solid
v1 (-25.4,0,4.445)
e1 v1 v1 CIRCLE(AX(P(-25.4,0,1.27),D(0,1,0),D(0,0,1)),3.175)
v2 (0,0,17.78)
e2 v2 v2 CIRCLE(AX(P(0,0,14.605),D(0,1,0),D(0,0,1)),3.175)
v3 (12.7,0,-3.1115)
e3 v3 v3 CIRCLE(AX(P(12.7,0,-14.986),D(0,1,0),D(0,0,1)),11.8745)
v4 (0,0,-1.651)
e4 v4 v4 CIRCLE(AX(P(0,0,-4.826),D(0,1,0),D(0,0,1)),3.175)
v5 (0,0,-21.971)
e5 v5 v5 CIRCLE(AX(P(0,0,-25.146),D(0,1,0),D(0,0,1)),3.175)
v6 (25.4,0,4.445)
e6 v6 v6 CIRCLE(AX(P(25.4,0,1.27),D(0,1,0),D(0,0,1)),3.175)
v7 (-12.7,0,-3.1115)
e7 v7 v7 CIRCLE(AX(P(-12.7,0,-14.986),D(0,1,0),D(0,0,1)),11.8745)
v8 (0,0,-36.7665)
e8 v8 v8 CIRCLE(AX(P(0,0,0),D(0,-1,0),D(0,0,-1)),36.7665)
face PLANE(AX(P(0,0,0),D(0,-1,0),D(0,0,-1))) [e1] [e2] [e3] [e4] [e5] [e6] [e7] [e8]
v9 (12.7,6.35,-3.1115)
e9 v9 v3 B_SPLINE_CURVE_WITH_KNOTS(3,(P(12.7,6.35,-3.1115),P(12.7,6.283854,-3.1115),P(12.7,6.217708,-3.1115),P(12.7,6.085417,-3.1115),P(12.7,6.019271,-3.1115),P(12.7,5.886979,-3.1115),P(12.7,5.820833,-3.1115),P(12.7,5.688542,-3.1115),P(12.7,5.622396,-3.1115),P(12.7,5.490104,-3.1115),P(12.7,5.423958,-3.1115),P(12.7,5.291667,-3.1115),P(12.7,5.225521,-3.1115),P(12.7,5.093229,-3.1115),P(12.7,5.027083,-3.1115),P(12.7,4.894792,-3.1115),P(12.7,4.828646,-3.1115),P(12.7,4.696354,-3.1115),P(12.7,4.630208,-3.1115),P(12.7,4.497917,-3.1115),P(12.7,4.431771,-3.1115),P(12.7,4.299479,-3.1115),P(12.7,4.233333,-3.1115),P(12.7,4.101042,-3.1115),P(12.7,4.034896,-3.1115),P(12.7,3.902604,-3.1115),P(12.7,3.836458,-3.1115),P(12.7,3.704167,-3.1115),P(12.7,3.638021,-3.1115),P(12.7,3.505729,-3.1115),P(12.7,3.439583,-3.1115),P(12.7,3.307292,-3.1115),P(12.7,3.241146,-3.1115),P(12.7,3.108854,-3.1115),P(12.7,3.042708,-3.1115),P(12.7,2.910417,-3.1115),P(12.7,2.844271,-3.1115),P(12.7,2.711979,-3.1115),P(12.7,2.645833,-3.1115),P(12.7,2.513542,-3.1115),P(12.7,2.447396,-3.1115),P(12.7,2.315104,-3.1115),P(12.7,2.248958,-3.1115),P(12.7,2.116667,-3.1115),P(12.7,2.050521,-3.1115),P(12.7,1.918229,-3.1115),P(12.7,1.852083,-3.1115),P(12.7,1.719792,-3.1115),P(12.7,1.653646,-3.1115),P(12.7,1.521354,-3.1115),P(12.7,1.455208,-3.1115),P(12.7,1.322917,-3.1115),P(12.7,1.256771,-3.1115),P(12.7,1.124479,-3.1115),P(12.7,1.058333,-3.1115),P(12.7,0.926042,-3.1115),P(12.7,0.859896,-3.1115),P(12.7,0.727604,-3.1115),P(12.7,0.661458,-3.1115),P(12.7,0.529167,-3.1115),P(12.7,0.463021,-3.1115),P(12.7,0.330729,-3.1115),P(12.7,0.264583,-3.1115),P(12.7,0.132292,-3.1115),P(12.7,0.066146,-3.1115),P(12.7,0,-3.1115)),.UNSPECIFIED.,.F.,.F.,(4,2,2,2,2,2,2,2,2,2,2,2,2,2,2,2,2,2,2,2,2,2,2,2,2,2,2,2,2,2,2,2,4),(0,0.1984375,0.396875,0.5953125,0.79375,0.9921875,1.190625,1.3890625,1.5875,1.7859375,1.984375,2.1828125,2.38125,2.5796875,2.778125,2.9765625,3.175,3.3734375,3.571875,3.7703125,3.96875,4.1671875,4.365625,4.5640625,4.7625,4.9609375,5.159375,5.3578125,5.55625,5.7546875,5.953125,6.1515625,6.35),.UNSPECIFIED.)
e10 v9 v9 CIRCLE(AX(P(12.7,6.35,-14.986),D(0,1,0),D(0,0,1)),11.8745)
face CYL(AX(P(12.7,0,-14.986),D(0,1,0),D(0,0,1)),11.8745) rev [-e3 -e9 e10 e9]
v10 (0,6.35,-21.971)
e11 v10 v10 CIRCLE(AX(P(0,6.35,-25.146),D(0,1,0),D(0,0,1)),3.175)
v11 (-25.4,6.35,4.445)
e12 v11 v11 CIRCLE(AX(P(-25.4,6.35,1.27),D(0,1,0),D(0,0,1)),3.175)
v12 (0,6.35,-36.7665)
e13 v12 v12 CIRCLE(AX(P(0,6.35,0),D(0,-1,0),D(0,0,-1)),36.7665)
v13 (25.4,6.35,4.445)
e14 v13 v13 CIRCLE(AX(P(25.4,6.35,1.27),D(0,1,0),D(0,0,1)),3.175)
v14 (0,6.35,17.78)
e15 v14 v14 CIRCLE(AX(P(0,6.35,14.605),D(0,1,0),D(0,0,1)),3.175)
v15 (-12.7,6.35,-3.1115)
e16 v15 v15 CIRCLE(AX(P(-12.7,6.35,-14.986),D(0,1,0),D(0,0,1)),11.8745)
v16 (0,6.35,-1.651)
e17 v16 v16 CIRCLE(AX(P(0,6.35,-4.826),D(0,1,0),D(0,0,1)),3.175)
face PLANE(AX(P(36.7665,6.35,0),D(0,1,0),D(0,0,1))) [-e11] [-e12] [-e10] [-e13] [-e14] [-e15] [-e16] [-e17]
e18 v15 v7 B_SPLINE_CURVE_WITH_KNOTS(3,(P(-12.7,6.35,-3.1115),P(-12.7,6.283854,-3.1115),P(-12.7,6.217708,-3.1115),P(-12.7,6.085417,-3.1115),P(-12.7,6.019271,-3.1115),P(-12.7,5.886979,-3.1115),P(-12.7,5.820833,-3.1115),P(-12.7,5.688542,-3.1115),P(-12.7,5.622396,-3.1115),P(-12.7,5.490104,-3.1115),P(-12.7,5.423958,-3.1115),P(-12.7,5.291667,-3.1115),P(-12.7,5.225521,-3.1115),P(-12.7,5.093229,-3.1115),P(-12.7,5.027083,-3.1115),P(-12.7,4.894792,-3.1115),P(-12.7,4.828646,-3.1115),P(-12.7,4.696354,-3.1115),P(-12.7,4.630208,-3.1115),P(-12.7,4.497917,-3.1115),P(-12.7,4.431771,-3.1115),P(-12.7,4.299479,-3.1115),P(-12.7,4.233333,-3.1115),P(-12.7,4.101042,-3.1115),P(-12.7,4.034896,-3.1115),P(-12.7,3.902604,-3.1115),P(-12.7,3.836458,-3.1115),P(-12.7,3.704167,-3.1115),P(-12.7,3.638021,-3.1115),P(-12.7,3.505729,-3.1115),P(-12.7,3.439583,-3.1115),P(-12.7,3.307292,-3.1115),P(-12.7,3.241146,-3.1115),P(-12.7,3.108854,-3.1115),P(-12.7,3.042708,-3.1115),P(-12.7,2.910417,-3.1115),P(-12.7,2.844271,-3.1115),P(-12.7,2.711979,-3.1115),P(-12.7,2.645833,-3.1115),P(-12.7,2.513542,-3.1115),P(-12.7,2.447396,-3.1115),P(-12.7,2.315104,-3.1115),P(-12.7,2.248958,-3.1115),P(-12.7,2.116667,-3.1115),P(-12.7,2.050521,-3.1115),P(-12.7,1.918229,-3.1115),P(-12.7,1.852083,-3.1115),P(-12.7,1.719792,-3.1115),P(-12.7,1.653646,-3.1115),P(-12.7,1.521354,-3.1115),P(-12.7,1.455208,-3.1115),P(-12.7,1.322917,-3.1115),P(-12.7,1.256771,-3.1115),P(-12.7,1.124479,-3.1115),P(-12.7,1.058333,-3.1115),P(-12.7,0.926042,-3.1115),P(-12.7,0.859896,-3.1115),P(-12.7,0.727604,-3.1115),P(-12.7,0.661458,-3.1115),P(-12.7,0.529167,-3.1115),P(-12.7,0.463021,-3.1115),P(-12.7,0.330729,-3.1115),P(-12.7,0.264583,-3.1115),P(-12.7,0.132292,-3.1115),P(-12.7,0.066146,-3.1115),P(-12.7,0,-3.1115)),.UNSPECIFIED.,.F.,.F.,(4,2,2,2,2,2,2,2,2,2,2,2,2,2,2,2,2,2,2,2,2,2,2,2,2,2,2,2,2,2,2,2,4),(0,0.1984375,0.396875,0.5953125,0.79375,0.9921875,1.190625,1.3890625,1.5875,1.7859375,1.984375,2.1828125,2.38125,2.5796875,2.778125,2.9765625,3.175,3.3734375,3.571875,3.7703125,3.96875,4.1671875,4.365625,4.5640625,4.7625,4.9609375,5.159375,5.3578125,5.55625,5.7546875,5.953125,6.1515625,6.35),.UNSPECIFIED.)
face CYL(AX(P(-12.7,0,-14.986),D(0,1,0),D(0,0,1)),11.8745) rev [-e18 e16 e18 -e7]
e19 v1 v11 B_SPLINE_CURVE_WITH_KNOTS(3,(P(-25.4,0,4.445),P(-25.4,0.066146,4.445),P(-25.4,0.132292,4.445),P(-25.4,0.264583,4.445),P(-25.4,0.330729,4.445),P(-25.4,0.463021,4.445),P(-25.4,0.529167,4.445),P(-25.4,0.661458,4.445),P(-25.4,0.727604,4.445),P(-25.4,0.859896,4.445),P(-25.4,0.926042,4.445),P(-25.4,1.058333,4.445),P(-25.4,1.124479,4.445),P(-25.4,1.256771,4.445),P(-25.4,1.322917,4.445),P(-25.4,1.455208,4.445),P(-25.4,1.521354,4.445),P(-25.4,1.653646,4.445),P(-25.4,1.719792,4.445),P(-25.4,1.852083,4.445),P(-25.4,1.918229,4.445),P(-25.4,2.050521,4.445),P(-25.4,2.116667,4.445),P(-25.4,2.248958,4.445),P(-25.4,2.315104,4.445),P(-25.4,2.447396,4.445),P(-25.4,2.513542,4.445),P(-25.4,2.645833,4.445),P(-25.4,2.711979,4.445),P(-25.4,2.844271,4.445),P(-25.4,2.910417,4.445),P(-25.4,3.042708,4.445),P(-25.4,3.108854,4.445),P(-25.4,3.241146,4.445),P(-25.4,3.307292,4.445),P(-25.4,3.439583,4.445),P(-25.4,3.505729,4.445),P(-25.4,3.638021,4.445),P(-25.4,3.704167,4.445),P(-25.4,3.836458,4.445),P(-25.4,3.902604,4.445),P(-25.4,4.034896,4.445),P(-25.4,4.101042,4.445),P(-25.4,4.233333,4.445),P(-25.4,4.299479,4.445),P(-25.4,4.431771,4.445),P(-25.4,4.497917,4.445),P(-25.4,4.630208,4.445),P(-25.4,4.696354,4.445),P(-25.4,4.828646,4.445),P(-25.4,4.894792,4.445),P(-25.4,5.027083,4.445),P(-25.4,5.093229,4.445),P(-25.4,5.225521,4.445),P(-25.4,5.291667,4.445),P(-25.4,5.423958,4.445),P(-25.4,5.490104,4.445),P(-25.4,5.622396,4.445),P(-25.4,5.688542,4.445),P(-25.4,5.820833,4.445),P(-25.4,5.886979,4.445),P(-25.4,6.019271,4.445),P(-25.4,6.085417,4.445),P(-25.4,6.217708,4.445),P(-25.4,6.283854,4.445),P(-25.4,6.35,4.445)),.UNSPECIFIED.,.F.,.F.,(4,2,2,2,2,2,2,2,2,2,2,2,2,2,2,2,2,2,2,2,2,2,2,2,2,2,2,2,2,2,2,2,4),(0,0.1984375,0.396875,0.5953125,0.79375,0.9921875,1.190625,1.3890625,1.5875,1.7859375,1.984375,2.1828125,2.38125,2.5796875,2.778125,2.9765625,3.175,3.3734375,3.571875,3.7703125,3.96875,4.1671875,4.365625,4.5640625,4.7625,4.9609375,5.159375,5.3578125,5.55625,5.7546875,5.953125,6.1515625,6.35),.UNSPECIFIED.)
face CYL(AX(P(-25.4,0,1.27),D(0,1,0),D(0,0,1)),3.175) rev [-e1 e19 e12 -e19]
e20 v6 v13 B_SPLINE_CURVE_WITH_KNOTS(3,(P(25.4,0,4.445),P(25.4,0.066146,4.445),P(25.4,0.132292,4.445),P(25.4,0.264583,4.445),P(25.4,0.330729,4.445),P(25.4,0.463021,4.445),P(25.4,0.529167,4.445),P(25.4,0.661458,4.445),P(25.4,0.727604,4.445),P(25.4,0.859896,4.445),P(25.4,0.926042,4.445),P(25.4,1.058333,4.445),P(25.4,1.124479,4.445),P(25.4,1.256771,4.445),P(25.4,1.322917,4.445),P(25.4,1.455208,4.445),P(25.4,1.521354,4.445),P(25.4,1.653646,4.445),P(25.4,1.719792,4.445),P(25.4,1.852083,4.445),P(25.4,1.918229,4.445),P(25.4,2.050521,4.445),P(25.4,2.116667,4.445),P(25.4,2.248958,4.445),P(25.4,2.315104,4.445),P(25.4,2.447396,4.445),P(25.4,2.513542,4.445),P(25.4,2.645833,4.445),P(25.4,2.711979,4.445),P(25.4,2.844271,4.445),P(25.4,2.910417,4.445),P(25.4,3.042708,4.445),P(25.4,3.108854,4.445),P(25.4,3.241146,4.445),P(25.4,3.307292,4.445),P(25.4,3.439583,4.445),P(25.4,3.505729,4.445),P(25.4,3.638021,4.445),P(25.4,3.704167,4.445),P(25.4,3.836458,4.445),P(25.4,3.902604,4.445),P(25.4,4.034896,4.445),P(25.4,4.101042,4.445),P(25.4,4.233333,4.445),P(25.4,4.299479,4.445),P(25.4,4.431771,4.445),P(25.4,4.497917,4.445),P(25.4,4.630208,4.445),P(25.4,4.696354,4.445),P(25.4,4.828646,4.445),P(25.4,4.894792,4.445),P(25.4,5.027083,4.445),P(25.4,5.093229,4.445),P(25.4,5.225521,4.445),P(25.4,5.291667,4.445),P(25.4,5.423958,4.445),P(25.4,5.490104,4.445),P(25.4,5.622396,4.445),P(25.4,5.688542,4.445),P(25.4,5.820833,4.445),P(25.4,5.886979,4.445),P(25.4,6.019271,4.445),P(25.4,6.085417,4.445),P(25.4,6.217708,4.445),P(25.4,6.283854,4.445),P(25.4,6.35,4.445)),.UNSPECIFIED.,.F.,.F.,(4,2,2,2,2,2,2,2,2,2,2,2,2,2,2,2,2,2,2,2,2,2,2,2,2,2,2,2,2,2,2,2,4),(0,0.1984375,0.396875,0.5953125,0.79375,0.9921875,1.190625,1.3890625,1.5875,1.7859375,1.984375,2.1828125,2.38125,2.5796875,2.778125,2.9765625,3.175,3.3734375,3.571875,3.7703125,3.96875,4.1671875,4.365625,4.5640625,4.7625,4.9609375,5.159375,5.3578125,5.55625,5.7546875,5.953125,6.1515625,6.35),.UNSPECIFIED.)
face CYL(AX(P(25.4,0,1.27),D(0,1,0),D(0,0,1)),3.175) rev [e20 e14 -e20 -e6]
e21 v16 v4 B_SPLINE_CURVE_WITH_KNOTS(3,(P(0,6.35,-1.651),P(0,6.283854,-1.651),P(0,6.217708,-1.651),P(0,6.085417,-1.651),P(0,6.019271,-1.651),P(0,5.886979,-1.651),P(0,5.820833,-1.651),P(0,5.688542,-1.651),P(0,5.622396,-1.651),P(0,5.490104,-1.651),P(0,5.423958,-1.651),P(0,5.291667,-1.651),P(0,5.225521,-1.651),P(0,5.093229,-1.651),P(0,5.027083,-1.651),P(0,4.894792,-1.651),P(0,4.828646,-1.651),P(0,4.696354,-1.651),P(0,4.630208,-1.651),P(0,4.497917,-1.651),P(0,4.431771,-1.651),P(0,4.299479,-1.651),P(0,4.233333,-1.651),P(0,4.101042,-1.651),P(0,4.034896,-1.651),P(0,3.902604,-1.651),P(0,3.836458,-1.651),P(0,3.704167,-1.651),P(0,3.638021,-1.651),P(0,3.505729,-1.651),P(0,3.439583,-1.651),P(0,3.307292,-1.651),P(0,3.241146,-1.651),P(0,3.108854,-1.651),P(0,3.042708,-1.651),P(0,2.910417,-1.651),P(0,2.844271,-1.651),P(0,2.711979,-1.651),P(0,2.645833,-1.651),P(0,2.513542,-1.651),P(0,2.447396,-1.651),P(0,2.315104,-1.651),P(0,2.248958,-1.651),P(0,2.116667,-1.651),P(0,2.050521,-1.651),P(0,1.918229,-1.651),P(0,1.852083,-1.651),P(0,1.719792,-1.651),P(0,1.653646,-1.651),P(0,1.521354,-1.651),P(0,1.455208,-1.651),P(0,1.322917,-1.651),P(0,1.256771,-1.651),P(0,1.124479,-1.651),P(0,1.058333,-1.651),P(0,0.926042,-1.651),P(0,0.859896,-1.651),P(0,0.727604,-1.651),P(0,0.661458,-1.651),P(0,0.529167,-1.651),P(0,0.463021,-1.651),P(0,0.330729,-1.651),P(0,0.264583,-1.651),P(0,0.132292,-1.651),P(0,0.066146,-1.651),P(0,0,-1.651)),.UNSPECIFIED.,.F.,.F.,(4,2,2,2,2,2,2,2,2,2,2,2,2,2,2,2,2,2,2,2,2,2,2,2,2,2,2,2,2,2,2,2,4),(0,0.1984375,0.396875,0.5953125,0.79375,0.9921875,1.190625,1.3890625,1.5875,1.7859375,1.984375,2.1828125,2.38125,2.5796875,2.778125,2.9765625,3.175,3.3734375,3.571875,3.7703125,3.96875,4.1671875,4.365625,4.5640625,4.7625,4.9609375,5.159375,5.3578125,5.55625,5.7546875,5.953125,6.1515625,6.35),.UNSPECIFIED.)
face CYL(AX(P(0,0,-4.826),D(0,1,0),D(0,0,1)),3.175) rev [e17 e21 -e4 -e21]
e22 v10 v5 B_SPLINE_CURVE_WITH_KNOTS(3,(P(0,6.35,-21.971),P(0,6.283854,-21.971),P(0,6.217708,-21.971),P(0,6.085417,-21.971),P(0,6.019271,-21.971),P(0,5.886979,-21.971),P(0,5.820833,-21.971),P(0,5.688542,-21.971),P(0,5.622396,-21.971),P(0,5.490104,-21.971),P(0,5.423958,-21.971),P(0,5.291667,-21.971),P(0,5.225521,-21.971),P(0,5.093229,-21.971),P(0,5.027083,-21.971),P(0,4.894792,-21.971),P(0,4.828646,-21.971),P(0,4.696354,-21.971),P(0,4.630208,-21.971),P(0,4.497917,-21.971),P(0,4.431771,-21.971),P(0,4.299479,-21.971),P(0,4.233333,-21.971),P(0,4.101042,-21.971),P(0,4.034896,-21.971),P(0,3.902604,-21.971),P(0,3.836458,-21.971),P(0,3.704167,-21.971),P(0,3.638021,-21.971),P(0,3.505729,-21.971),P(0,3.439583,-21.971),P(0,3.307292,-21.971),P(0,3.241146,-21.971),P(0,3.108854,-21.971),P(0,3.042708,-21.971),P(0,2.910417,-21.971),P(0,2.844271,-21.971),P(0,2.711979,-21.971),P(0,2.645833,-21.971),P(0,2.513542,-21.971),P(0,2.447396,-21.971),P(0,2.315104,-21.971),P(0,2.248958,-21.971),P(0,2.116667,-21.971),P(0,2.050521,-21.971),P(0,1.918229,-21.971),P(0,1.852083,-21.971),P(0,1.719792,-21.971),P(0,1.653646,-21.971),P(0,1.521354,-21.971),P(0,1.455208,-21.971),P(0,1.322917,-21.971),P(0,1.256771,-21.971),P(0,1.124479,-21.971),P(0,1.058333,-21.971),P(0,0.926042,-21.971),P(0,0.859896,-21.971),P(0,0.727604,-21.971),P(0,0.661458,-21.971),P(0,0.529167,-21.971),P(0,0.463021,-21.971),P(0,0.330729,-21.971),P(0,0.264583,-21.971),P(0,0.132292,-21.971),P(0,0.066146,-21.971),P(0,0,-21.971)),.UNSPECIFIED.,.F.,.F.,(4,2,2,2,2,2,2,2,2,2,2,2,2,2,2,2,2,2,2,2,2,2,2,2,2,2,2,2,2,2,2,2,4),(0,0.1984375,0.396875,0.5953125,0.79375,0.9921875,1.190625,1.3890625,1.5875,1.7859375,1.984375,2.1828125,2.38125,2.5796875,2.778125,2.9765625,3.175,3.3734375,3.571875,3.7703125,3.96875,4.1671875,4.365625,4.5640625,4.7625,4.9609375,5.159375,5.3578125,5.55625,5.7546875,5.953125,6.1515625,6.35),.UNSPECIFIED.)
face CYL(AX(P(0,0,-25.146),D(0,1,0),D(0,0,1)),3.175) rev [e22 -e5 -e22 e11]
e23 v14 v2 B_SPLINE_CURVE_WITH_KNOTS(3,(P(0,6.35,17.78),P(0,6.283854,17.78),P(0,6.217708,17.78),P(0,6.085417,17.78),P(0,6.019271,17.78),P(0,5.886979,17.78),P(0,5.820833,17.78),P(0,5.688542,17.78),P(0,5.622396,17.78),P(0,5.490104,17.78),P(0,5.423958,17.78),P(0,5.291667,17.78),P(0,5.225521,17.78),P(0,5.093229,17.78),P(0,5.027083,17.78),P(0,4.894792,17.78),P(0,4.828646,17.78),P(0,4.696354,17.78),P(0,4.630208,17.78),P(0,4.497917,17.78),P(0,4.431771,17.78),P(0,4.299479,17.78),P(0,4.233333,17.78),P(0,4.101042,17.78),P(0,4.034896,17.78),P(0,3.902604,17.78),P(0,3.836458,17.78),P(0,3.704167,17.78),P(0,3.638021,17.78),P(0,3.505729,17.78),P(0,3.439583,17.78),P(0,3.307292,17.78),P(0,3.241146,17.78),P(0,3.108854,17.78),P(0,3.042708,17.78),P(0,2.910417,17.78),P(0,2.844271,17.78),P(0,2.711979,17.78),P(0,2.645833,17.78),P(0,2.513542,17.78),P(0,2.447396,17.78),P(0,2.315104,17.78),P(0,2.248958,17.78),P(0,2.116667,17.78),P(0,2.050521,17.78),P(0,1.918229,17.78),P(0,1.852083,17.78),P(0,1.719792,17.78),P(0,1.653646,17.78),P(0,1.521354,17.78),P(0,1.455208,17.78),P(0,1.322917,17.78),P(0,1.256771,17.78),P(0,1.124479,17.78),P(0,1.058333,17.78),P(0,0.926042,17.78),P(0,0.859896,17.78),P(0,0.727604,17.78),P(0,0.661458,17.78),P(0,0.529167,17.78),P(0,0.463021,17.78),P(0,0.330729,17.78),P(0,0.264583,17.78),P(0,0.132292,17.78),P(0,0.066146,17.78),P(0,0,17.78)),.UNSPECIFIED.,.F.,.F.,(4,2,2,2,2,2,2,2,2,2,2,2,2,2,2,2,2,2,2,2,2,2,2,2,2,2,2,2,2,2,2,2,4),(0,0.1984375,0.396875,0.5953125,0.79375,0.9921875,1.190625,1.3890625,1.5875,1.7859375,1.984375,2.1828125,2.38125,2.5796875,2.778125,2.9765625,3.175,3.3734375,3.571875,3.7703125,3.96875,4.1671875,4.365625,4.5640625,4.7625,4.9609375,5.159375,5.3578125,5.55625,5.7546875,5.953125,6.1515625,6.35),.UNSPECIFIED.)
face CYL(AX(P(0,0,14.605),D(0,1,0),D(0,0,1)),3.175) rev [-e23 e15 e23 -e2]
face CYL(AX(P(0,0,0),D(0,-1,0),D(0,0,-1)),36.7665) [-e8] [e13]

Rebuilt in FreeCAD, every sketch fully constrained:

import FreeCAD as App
import Part
import Sketcher
Q = App.Units.Quantity

doc = App.newDocument("Part")
params = doc.addObject("Spreadsheet::Sheet", "Params")
for row, (alias, value) in enumerate([
    ("sketch1_height", "0.25 in"),
    ("revolution_angle", "360 deg"),
    ("sketch2_diameter", "0.25 in"),
    ("sketch2_diameter2", "0.935 in"),
    ("sketch3_diameter", "0.25 in"),
], start=1):
    params.set(f"A{row}", alias)
    params.set(f"B{row}", "=" + value)
    params.setAlias(f"B{row}", alias)

body = doc.addObject("PartDesign::Body", "Body")

sketch1 = doc.addObject("Sketcher::SketchObject", "Sketch")
body.addObject(sketch1)
sketch1.AttachmentSupport = (doc.XY_Plane, [""])
sketch1.MapMode = "FlatFace"
sketch1.addGeometry([
    Part.LineSegment(App.Vector(0, 6.35, 0), App.Vector(0, 0, 0)),
    Part.LineSegment(App.Vector(0, 0, 0), App.Vector(36.7665, 0, 0)),
    Part.LineSegment(App.Vector(36.7665, 0, 0), App.Vector(36.7665, 6.35, 0)),
    Part.LineSegment(App.Vector(36.7665, 6.35, 0), App.Vector(0, 6.35, 0)),
], False)
sketch1.addConstraint([
    Sketcher.Constraint("Coincident", 0, 2, 1, 1),
    Sketcher.Constraint("Coincident", 1, 2, 2, 1),
    Sketcher.Constraint("Coincident", 2, 2, 3, 1),
    Sketcher.Constraint("Coincident", 3, 2, 0, 1),
    Sketcher.Constraint("Vertical", 0),
    Sketcher.Constraint("Horizontal", 1),
    Sketcher.Constraint("Vertical", 2),
    Sketcher.Constraint("Horizontal", 3),
    Sketcher.Constraint("Coincident", 0, 2, -1, 1),
    Sketcher.Constraint("DistanceY", 0, 2, 0, 1, Q("0.25 in")),
    Sketcher.Constraint("DistanceX", 1, 1, 1, 2, Q("1.4475 in")),
])
sketch1.setExpression("Constraints[9]", "Params.sketch1_height")
revolution = doc.addObject("PartDesign::Revolution", "Revolution")
body.addObject(revolution)
revolution.Profile = sketch1
revolution.ReferenceAxis = (sketch1, ["V_Axis"])
revolution.setExpression("Angle", "Params.revolution_angle")

sketch2 = doc.addObject("Sketcher::SketchObject", "Sketch001")
body.addObject(sketch2)
sketch2.AttachmentSupport = (doc.XZ_Plane, [""])
sketch2.MapMode = "FlatFace"
sketch2.AttachmentOffset = App.Placement(App.Vector(0, 0, -0.25 * 25.4), App.Rotation())
sketch2.addGeometry([
    Part.Circle(App.Vector(-12.7, -14.986, 0), App.Vector(0, 0, 1), 11.8745),
    Part.Circle(App.Vector(12.7, -14.986, 0), App.Vector(0, 0, 1), 11.8745),
    Part.Circle(App.Vector(0, -25.146, 0), App.Vector(0, 0, 1), 3.175),
    Part.Circle(App.Vector(0, -4.826, 0), App.Vector(0, 0, 1), 3.175),
    Part.Circle(App.Vector(0, 14.605, 0), App.Vector(0, 0, 1), 3.175),
], False)
sketch2.addConstraint([
    Sketcher.Constraint("Equal", 0, 1),
    Sketcher.Constraint("Equal", 2, 3),
    Sketcher.Constraint("Equal", 3, 4),
    Sketcher.Constraint("Symmetric", 0, 3, 1, 3, -2),
    Sketcher.Constraint("PointOnObject", 2, 3, -2),
    Sketcher.Constraint("PointOnObject", 3, 3, -2),
    Sketcher.Constraint("PointOnObject", 4, 3, -2),
    Sketcher.Constraint("Diameter", 2, Q("0.25 in")),
    Sketcher.Constraint("Diameter", 0, Q("0.935 in")),
    Sketcher.Constraint("DistanceX", 0, 3, 1, 3, Q("1 in")),
    Sketcher.Constraint("DistanceY", 2, 3, 0, 3, Q("0.4 in")),
    Sketcher.Constraint("DistanceY", 0, 3, 3, 3, Q("0.4 in")),
    Sketcher.Constraint("DistanceY", 0, 3, -1, 1, Q("0.59 in")),
    Sketcher.Constraint("DistanceY", -1, 1, 4, 3, Q("0.575 in")),
])
sketch2.setExpression("Constraints[7]", "Params.sketch2_diameter")
sketch2.setExpression("Constraints[8]", "Params.sketch2_diameter2")
pocket1 = doc.addObject("PartDesign::Pocket", "Pocket")
body.addObject(pocket1)
pocket1.Profile = sketch2
pocket1.Type = "ThroughAll"
pocket1.Midplane = True

sketch3 = doc.addObject("Sketcher::SketchObject", "Sketch002")
body.addObject(sketch3)
sketch3.AttachmentSupport = (doc.XZ_Plane, [""])
sketch3.MapMode = "FlatFace"
sketch3.AttachmentOffset = App.Placement(App.Vector(0, 0, -0.25 * 25.4), App.Rotation())
sketch3.addGeometry([
    Part.Circle(App.Vector(-25.4, 1.27, 0), App.Vector(0, 0, 1), 3.175),
    Part.Circle(App.Vector(25.4, 1.27, 0), App.Vector(0, 0, 1), 3.175),
], False)
sketch3.addConstraint([
    Sketcher.Constraint("Equal", 0, 1),
    Sketcher.Constraint("Symmetric", 0, 3, 1, 3, -2),
    Sketcher.Constraint("Diameter", 0, Q("0.25 in")),
    Sketcher.Constraint("DistanceX", 0, 3, -1, 1, Q("1 in")),
    Sketcher.Constraint("DistanceY", -1, 1, 0, 3, Q("0.05 in")),
])
sketch3.setExpression("Constraints[2]", "Params.sketch3_diameter")
pocket2 = doc.addObject("PartDesign::Pocket", "Pocket001")
body.addObject(pocket2)
pocket2.Profile = sketch3
pocket2.Type = "ThroughAll"
pocket2.Midplane = True

doc.recompute()
